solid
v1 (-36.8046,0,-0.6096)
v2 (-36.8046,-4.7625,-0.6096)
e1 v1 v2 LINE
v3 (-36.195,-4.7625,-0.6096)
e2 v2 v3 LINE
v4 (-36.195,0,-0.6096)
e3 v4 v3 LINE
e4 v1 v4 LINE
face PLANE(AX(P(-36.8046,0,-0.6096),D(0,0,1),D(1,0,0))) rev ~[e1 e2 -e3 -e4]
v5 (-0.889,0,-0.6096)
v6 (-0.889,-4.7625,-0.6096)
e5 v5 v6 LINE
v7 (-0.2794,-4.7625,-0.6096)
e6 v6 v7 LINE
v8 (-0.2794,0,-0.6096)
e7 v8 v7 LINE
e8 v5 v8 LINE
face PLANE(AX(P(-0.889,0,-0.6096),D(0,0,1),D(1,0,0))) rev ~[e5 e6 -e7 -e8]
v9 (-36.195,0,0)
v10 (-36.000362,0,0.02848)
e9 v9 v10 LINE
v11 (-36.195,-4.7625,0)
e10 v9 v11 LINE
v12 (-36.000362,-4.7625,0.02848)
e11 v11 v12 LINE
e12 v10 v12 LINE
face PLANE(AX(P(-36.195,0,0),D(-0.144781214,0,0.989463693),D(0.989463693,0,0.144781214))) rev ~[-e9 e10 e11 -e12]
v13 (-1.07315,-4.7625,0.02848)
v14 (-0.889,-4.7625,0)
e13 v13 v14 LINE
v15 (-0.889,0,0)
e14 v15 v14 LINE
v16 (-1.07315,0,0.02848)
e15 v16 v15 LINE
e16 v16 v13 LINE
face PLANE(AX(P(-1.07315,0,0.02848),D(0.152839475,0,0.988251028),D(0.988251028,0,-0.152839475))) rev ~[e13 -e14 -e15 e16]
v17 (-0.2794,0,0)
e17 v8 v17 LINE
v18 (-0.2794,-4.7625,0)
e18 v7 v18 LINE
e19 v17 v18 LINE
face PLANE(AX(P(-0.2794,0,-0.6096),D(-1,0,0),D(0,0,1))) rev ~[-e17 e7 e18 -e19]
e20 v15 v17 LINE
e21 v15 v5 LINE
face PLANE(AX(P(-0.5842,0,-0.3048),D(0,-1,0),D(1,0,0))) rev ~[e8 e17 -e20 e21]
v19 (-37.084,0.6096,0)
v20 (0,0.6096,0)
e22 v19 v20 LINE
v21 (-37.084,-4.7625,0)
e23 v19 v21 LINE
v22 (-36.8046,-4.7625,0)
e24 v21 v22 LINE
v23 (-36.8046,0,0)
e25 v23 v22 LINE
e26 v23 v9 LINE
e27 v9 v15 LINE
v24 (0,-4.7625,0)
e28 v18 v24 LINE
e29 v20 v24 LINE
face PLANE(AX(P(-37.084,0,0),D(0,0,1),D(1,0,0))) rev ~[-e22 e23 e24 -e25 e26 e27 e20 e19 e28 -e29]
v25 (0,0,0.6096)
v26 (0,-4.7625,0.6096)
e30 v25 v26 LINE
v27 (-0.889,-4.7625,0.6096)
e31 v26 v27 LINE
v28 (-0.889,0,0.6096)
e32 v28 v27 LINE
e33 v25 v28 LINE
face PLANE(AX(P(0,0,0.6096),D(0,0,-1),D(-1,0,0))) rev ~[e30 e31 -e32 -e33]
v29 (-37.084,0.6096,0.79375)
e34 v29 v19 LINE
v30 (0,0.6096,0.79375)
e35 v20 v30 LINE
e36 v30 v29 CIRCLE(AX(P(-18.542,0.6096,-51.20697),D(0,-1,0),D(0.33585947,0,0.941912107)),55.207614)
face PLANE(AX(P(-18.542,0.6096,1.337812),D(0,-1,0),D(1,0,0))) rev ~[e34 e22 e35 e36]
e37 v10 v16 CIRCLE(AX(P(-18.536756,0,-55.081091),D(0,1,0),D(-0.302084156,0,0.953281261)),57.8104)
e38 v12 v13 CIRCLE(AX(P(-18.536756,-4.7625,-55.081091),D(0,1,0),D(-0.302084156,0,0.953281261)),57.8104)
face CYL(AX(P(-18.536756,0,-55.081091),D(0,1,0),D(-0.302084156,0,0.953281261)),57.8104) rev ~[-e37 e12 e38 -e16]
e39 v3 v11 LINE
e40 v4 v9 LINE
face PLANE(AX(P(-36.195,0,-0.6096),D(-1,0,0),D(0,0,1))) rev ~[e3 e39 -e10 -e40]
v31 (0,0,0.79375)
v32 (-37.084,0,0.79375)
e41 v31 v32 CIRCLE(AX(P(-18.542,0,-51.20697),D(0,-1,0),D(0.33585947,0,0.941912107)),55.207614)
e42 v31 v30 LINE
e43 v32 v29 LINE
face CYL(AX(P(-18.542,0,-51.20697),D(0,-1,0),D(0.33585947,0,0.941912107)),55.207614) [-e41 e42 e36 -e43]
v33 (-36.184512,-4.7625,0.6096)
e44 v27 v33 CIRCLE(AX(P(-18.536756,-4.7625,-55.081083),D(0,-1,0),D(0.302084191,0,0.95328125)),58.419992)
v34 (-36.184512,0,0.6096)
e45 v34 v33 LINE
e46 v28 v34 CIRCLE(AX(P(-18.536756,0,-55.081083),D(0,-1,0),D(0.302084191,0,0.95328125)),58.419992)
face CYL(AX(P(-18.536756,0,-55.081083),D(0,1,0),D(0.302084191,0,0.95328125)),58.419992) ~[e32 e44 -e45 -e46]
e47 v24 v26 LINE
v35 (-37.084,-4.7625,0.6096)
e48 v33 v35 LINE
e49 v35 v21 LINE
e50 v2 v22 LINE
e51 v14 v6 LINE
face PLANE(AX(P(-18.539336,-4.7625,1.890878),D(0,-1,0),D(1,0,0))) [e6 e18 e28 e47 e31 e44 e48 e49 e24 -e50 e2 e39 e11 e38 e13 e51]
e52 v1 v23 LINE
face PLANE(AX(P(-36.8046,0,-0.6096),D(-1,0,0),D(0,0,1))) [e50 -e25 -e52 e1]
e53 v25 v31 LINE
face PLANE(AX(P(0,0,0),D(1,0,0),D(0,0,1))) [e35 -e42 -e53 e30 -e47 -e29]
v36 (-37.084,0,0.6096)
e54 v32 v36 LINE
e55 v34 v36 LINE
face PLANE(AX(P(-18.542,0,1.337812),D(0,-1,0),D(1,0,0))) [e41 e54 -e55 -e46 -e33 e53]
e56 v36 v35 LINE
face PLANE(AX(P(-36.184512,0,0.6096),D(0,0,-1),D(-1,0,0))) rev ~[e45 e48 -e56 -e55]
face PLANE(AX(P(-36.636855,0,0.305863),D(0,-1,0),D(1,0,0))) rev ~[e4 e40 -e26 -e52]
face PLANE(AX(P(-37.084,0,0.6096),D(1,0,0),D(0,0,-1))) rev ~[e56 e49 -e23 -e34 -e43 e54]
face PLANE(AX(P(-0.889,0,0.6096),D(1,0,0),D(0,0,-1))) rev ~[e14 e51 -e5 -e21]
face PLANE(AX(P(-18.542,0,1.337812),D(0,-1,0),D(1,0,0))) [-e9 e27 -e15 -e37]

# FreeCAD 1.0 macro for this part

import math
import FreeCAD as App
import Part
import Sketcher
from FreeCAD import Vector
Q = App.Units.Quantity

doc = App.newDocument("Part")
body = doc.addObject("PartDesign::Body", "Body")

sketch1 = body.newObject("Sketcher::SketchObject", "Sketch")
sketch1.AttachmentSupport = (doc.getObject("XZ_Plane"), [""])
sketch1.MapMode = "FlatFace"
sketch1.addGeometry([
    Part.LineSegment(Vector(-37.1, 0, 0), Vector(0, 0, 0)),
    Part.LineSegment(Vector(0, 0, 0), Vector(0, 0.8, 0)),
    Part.ArcOfCircle(Part.Circle(Vector(-18.5, -51.2, 0), Vector(0, 0, 1), 55.2), math.radians(70), math.radians(110)),
    Part.LineSegment(Vector(-37.1, 0.8, 0), Vector(-37.1, 0, 0)),
], False)
sketch1.addConstraint([
    Sketcher.Constraint("Coincident", 0, 2, 1, 1),
    Sketcher.Constraint("Coincident", 1, 2, 2, 1),
    Sketcher.Constraint("Coincident", 2, 2, 3, 1),
    Sketcher.Constraint("Coincident", 3, 2, 0, 1),
    Sketcher.Constraint("Horizontal", 0),
    Sketcher.Constraint("Vertical", 1),
    Sketcher.Constraint("Vertical", 3),
    Sketcher.Constraint("Coincident", 0, 2, -1, 1),
    Sketcher.Constraint("Horizontal", 1, 2, 2, 2),
    Sketcher.Constraint("DistanceX", 0, 1, 0, 2, Q("1.46 in")),
    Sketcher.Constraint("DistanceY", 1, 1, 1, 2, Q("0.03125 in")),
    Sketcher.Constraint("Radius", 2, Q("55.207614 mm")),
])
pad1 = body.newObject("PartDesign::Pad", "Pad")
pad1.Profile = sketch1
pad1.Length = Q("0.024 in")
pad1.Reversed = True

sketch2 = body.newObject("Sketcher::SketchObject", "Sketch001")
sketch2.AttachmentSupport = (doc.getObject("XZ_Plane"), [""])
sketch2.MapMode = "FlatFace"
sketch2.addGeometry([
    Part.LineSegment(Vector(-37.08, 0.61, 0), Vector(-37.08, 0, 0)),
    Part.LineSegment(Vector(-37.08, 0, 0), Vector(-36.8, 0, 0)),
    Part.LineSegment(Vector(-36.8, 0, 0), Vector(-36.8, -0.61, 0)),
    Part.LineSegment(Vector(-36.8, -0.61, 0), Vector(-36.2, -0.61, 0)),
    Part.LineSegment(Vector(-36.2, -0.61, 0), Vector(-36.2, 0, 0)),
    Part.LineSegment(Vector(-36.2, 0, 0), Vector(-36.18, 0.61, 0)),
    Part.LineSegment(Vector(-36.18, 0.61, 0), Vector(-37.08, 0.61, 0)),
    Part.LineSegment(Vector(-0.89, -0.61, 0), Vector(-0.28, -0.61, 0)),
    Part.LineSegment(Vector(-0.28, -0.61, 0), Vector(-0.28, 0, 0)),
    Part.LineSegment(Vector(-0.28, 0, 0), Vector(0, 0, 0)),
    Part.LineSegment(Vector(0, 0, 0), Vector(0, 0.61, 0)),
    Part.LineSegment(Vector(0, 0.61, 0), Vector(-0.89, 0.61, 0)),
    Part.LineSegment(Vector(-0.89, 0.61, 0), Vector(-0.89, -0.61, 0)),
], False)
sketch2.addConstraint([
    Sketcher.Constraint("Coincident", 0, 2, 1, 1),
    Sketcher.Constraint("Coincident", 1, 2, 2, 1),
    Sketcher.Constraint("Coincident", 2, 2, 3, 1),
    Sketcher.Constraint("Coincident", 3, 2, 4, 1),
    Sketcher.Constraint("Coincident", 4, 2, 5, 1),
    Sketcher.Constraint("Coincident", 5, 2, 6, 1),
    Sketcher.Constraint("Coincident", 6, 2, 0, 1),
    Sketcher.Constraint("Coincident", 7, 2, 8, 1),
    Sketcher.Constraint("Coincident", 8, 2, 9, 1),
    Sketcher.Constraint("Coincident", 9, 2, 10, 1),
    Sketcher.Constraint("Coincident", 10, 2, 11, 1),
    Sketcher.Constraint("Coincident", 11, 2, 12, 1),
    Sketcher.Constraint("Coincident", 12, 2, 7, 1),
    Sketcher.Constraint("Vertical", 0),
    Sketcher.Constraint("Horizontal", 1),
    Sketcher.Constraint("Vertical", 2),
    Sketcher.Constraint("Horizontal", 3),
    Sketcher.Constraint("Vertical", 4),
    Sketcher.Constraint("Horizontal", 6),
    Sketcher.Constraint("Horizontal", 7),
    Sketcher.Constraint("Vertical", 8),
    Sketcher.Constraint("Horizontal", 9),
    Sketcher.Constraint("Vertical", 10),
    Sketcher.Constraint("Horizontal", 11),
    Sketcher.Constraint("Vertical", 12),
    Sketcher.Constraint("Coincident", 9, 2, -1, 1),
    Sketcher.Constraint("PointOnObject", 0, 2, -1),
    Sketcher.Constraint("PointOnObject", 4, 2, -1),
    Sketcher.Constraint("Horizontal", 3, 2, 7, 2),
    Sketcher.Constraint("Horizontal", 6, 2, 10, 2),
    Sketcher.Constraint("Equal", 3, 7),
    Sketcher.Constraint("Equal", 1, 9),
    Sketcher.Constraint("Equal", 7, 0),
    Sketcher.Constraint("Equal", 0, 2),
    Sketcher.Constraint("DistanceX", 1, 1, 1, 2, Q("0.011 in")),
    Sketcher.Constraint("DistanceX", 3, 1, 3, 2, Q("0.024 in")),
    Sketcher.Constraint("DistanceX", 0, 2, -1, 1, Q("1.46 in")),
    Sketcher.Constraint("DistanceX", 6, 2, 6, 1, Q("0.899488 mm")),
])
pad2 = body.newObject("PartDesign::Pad", "Pad001")
pad2.Profile = sketch2
pad2.Length = Q("0.1875 in")

sketch3 = body.newObject("Sketcher::SketchObject", "Sketch002")
sketch3.AttachmentSupport = (doc.getObject("XZ_Plane"), [""])
sketch3.MapMode = "FlatFace"
sketch3.addGeometry([
    Part.LineSegment(Vector(-0.889, 0, 0), Vector(-0.889, 0.6096, 0)),
    Part.ArcOfCircle(Part.Circle(Vector(-18.536756, -55.081083, 0), Vector(0, 0, 1), 58.419992), math.radians(72.417172), math.radians(107.582828)),
    Part.LineSegment(Vector(-36.184512, 0.6096, 0), Vector(-36.195, 0, 0)),
    Part.LineSegment(Vector(-36.195, 0, 0), Vector(-36.000362, 0.02848, 0)),
    Part.ArcOfCircle(Part.Circle(Vector(-18.536756, -55.081091, 0), Vector(0, 0, 1), 57.8104), math.radians(72.417175), math.radians(107.582825)),
    Part.LineSegment(Vector(-1.07315, 0.02848, 0), Vector(-0.889, 0, 0)),
], False)
sketch3.addConstraint([
    Sketcher.Constraint("Coincident", 0, 2, 1, 1),
    Sketcher.Constraint("Coincident", 1, 2, 2, 1),
    Sketcher.Constraint("Coincident", 2, 2, 3, 1),
    Sketcher.Constraint("Coincident", 3, 2, 4, 2),
    Sketcher.Constraint("Coincident", 4, 1, 5, 1),
    Sketcher.Constraint("Coincident", 5, 2, 0, 1),
    Sketcher.Constraint("Vertical", 0),
    Sketcher.Constraint("Coincident", 4, 3, 1, 3),
    Sketcher.Constraint("PointOnObject", 2, 2, -1),
    Sketcher.Constraint("PointOnObject", 5, 2, -1),
    Sketcher.Constraint("Horizontal", 0, 2, 1, 2),
    Sketcher.Constraint("Horizontal", 3, 2, 4, 1),
    Sketcher.Constraint("Radius", 4, Q("2.276 in")),
    Sketcher.Constraint("DistanceY", 0, 1, 0, 2, Q("0.024 in")),
    Sketcher.Constraint("DistanceX", 2, 2, 0, 2, Q("1.39 in")),
    Sketcher.Constraint("DistanceX", 0, 2, -1, 1, Q("0.035 in")),
    Sketcher.Constraint("Radius", 1, Q("58.419992 mm")),
    Sketcher.Constraint("Distance", 2, Q("0.60969 mm")),
    Sketcher.Constraint("Distance", 3, Q("0.196711 mm")),
])
pad3 = body.newObject("PartDesign::Pad", "Pad002")
pad3.Profile = sketch3
pad3.Length = Q("0.1875 in")

doc.recompute()
